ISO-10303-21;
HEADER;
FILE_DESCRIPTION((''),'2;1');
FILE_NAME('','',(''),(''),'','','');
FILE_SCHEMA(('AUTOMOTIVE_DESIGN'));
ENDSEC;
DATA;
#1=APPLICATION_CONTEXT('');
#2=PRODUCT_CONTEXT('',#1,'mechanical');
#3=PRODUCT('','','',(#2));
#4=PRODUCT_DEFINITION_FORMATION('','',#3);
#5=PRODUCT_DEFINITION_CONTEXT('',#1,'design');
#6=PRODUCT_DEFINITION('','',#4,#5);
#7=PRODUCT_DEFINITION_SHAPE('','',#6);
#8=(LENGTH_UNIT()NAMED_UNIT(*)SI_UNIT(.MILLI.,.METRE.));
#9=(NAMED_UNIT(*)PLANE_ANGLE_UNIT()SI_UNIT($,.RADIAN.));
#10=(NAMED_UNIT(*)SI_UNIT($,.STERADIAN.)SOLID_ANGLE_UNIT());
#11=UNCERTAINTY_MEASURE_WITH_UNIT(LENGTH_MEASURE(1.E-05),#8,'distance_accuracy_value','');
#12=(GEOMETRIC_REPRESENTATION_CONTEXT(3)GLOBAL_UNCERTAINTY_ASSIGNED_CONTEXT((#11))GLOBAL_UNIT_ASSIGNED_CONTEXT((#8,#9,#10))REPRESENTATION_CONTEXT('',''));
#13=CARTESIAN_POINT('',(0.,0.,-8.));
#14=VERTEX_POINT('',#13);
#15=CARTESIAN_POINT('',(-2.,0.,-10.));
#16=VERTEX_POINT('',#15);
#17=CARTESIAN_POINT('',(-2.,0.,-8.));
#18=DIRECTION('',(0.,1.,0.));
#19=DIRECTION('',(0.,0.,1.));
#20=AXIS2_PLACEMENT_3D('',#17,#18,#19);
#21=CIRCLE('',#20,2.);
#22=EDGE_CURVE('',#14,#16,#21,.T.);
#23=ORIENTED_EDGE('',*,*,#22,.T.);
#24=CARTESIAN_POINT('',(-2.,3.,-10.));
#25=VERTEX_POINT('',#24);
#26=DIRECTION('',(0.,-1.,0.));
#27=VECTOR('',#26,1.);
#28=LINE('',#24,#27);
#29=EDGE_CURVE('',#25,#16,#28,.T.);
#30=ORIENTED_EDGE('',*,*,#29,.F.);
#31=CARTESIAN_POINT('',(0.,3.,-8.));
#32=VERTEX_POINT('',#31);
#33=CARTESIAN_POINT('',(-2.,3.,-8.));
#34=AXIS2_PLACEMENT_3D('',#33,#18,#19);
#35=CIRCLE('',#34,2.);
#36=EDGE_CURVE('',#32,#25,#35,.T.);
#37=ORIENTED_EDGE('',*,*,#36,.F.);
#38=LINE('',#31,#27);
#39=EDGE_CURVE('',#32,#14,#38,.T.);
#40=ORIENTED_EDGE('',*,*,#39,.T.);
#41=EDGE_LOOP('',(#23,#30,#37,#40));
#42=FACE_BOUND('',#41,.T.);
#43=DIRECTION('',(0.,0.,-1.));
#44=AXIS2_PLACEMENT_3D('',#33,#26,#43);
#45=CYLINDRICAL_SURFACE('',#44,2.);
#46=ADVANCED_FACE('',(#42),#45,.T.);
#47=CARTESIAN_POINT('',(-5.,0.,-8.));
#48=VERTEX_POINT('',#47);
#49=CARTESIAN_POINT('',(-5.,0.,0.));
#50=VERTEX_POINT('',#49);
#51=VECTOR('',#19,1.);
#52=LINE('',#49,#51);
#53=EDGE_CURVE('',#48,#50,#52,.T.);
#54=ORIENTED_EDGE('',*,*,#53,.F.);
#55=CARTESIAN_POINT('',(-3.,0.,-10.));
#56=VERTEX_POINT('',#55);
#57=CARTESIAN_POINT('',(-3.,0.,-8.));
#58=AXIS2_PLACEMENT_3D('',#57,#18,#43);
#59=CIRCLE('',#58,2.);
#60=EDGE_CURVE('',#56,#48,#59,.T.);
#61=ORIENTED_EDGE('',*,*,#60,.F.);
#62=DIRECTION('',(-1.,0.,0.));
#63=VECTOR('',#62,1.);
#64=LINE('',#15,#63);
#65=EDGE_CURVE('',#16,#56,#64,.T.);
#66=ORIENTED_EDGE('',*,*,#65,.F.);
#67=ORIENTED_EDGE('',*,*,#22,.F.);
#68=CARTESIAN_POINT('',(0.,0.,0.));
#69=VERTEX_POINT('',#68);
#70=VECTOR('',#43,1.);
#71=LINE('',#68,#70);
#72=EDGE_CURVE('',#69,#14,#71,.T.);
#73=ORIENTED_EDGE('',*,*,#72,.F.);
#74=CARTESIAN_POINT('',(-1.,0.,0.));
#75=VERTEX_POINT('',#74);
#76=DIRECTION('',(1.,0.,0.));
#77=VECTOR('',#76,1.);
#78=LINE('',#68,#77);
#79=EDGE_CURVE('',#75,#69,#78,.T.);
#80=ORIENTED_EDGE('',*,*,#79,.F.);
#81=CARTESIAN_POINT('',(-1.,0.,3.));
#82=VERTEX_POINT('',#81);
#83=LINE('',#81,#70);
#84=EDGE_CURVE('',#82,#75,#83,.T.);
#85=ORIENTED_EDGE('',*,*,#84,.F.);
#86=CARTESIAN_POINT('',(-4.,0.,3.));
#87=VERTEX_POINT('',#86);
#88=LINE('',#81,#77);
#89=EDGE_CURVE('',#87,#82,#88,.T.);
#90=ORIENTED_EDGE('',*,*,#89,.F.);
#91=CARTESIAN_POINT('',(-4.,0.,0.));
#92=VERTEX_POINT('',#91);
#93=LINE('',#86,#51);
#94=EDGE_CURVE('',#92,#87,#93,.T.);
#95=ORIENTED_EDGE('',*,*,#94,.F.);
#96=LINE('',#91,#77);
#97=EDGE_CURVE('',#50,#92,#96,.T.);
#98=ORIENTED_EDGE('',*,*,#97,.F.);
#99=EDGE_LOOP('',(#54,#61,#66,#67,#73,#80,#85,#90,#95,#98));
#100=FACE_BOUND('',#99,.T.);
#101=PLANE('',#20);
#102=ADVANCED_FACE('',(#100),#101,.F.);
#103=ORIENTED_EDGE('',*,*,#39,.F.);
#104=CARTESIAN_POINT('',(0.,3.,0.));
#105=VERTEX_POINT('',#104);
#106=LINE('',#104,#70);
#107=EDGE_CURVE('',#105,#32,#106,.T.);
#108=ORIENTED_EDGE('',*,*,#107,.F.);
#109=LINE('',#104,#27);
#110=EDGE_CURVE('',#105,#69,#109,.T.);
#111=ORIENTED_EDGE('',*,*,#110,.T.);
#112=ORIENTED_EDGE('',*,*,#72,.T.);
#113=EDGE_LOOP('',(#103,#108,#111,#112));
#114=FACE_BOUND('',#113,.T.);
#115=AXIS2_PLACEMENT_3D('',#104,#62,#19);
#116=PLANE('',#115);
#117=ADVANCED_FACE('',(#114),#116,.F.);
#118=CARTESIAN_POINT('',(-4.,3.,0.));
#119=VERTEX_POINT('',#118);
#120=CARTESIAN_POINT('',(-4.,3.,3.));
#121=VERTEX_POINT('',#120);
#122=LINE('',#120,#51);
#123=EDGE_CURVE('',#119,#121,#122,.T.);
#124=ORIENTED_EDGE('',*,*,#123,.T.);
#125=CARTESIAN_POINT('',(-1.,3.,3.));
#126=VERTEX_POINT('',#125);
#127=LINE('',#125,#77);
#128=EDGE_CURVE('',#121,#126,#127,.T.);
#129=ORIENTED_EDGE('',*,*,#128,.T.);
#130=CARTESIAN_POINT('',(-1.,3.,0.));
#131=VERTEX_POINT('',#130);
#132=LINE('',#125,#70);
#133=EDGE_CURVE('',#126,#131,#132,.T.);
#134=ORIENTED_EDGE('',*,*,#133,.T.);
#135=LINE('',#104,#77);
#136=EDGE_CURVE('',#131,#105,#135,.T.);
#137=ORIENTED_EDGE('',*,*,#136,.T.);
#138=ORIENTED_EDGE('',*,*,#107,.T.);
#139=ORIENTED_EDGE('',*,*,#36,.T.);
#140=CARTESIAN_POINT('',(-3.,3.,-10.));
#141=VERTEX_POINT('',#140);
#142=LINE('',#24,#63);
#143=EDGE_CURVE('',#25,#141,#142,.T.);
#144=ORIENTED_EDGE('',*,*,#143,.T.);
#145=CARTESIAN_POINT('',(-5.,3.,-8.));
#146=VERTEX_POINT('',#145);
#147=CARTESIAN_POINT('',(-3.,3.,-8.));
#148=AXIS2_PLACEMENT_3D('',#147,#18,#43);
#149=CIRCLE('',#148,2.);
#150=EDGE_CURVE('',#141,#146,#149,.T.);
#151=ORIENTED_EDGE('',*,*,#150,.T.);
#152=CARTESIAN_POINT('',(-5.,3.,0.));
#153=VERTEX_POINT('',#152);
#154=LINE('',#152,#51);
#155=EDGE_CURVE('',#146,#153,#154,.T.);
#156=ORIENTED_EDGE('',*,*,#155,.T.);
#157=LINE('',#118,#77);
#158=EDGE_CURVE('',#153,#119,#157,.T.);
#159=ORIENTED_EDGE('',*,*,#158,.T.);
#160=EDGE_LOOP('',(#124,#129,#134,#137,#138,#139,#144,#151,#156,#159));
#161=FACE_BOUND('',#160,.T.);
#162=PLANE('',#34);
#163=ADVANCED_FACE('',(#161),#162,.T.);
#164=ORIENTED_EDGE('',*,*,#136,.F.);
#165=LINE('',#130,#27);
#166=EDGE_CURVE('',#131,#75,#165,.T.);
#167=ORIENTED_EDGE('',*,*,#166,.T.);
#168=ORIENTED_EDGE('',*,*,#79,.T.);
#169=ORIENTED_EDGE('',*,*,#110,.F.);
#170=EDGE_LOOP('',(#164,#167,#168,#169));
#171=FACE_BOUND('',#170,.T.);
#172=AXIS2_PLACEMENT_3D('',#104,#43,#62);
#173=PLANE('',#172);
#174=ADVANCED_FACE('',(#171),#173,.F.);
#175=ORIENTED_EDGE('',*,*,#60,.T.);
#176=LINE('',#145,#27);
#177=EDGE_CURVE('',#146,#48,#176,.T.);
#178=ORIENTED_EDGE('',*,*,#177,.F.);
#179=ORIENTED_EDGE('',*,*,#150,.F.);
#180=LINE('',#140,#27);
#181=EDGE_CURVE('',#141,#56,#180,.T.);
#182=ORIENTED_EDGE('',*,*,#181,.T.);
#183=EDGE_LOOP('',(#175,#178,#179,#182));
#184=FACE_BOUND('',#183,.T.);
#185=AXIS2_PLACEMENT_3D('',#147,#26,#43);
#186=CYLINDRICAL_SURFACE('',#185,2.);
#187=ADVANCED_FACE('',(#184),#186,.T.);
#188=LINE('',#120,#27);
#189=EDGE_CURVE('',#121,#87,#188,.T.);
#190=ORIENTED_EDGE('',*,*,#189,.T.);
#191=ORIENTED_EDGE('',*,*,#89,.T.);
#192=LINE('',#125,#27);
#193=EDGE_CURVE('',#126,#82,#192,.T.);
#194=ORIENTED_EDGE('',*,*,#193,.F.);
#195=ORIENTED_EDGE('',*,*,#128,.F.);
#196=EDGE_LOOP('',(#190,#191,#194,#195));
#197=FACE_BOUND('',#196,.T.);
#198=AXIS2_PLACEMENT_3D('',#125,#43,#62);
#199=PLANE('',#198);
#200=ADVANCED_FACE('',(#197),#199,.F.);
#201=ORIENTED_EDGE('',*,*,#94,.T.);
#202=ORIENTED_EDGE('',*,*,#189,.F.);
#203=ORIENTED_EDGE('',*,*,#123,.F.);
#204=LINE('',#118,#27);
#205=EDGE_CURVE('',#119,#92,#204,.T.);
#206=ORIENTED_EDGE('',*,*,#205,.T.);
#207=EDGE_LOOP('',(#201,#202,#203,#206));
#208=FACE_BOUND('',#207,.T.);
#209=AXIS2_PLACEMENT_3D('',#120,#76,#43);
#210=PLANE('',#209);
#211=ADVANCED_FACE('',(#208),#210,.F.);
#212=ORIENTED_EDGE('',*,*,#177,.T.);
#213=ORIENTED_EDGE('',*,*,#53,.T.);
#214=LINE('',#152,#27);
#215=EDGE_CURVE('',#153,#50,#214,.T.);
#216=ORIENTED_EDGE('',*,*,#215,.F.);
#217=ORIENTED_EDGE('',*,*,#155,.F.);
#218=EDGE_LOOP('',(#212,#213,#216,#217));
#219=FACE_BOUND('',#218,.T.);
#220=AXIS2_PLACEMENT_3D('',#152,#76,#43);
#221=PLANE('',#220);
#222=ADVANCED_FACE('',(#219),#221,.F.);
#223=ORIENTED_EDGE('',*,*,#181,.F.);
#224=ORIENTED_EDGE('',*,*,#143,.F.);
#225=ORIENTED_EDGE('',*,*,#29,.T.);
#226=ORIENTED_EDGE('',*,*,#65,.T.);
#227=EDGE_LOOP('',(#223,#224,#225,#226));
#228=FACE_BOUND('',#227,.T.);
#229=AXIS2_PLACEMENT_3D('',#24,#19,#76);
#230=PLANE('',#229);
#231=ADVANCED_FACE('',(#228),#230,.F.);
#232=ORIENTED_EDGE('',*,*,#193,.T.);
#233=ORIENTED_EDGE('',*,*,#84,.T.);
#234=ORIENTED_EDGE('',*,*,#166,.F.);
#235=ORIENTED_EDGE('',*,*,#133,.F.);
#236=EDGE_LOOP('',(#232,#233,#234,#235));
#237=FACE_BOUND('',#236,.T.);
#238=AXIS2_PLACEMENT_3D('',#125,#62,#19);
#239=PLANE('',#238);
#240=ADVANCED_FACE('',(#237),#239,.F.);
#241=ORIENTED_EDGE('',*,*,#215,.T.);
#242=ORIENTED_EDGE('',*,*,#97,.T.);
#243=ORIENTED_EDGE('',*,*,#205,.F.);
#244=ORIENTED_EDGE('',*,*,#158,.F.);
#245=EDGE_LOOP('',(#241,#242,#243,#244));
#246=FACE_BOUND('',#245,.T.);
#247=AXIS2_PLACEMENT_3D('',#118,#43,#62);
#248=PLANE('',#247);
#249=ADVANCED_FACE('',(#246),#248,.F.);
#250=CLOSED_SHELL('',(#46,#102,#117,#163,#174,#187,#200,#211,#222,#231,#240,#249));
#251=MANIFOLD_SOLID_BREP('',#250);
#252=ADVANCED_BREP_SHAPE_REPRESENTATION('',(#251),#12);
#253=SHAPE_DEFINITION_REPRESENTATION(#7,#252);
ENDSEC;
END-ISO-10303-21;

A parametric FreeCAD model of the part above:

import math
import FreeCAD as App
import Part
import Sketcher
Q = App.Units.Quantity

doc = App.newDocument("Part")
params = doc.addObject("Spreadsheet::Sheet", "Params")
for row, (alias, value) in enumerate([
    ("sketch1_radius", "2 mm"),
    ("sketch1_width", "3 mm"),
    ("sketch1_height", "8 mm"),
    ("pad1_length", "3 mm"),
], start=1):
    params.set(f"A{row}", alias)
    params.set(f"B{row}", "=" + value)
    params.setAlias(f"B{row}", alias)

body = doc.addObject("PartDesign::Body", "Body")

# Sketch on XZ plane
sketch1 = doc.addObject("Sketcher::SketchObject", "Sketch")
body.addObject(sketch1)
sketch1.AttachmentSupport = (doc.XZ_Plane, [""])
sketch1.MapMode = "FlatFace"
sketch1.addGeometry([
    Part.LineSegment(App.Vector(-4, 3, 0), App.Vector(-1, 3, 0)),  # 0
    Part.LineSegment(App.Vector(-1, 3, 0), App.Vector(-1, 0, 0)),  # 1
    Part.LineSegment(App.Vector(-1, 0, 0), App.Vector(0, 0, 0)),  # 2
    Part.LineSegment(App.Vector(0, 0, 0), App.Vector(0, -8, 0)),  # 3
    Part.ArcOfCircle(Part.Circle(App.Vector(-2, -8, 0), App.Vector(0, 0, 1), 2), math.radians(-90), math.radians(0)),  # 4
    Part.LineSegment(App.Vector(-2, -10, 0), App.Vector(-3, -10, 0)),  # 5
    Part.ArcOfCircle(Part.Circle(App.Vector(-3, -8, 0), App.Vector(0, 0, 1), 2), math.radians(-180), math.radians(-90)),  # 6
    Part.LineSegment(App.Vector(-5, -8, 0), App.Vector(-5, 0, 0)),  # 7
    Part.LineSegment(App.Vector(-5, 0, 0), App.Vector(-4, 0, 0)),  # 8
    Part.LineSegment(App.Vector(-4, 0, 0), App.Vector(-4, 3, 0)),  # 9
], False)
sketch1.addConstraint([
    Sketcher.Constraint("Coincident", 0, 2, 1, 1),
    Sketcher.Constraint("Coincident", 1, 2, 2, 1),
    Sketcher.Constraint("Coincident", 2, 2, 3, 1),
    Sketcher.Constraint("Tangent", 3, 2, 4, 2),
    Sketcher.Constraint("Tangent", 4, 1, 5, 1),
    Sketcher.Constraint("Tangent", 5, 2, 6, 2),
    Sketcher.Constraint("Tangent", 6, 1, 7, 1),
    Sketcher.Constraint("Coincident", 7, 2, 8, 1),
    Sketcher.Constraint("Coincident", 8, 2, 9, 1),
    Sketcher.Constraint("Coincident", 9, 2, 0, 1),
    Sketcher.Constraint("Horizontal", 0),
    Sketcher.Constraint("Vertical", 1),
    Sketcher.Constraint("Horizontal", 2),
    Sketcher.Constraint("Vertical", 3),
    Sketcher.Constraint("Horizontal", 5),
    Sketcher.Constraint("Vertical", 7),
    Sketcher.Constraint("Horizontal", 8),
    Sketcher.Constraint("Vertical", 9),
    Sketcher.Constraint("Coincident", 2, 2, -1, 1),
    Sketcher.Constraint("Equal", 4, 6),
    Sketcher.Constraint("PointOnObject", 7, 2, -1),
    Sketcher.Constraint("Equal", 2, 5),
    Sketcher.Constraint("Equal", 5, 8),
    Sketcher.Constraint("Equal", 0, 1),
    Sketcher.Constraint("Radius", 4, Q("2 mm")),
    Sketcher.Constraint("DistanceX", 0, 1, 0, 2, Q("3 mm")),
    Sketcher.Constraint("DistanceY", 3, 2, 3, 1, Q("8 mm")),
])
sketch1.setExpression("Constraints[24]", "Params.sketch1_radius")
sketch1.setExpression("Constraints[25]", "Params.sketch1_width")
sketch1.setExpression("Constraints[26]", "Params.sketch1_height")
pad1 = doc.addObject("PartDesign::Pad", "Pad")
body.addObject(pad1)
pad1.Profile = sketch1
pad1.setExpression("Length", "Params.pad1_length")
pad1.Reversed = True

doc.recompute()
